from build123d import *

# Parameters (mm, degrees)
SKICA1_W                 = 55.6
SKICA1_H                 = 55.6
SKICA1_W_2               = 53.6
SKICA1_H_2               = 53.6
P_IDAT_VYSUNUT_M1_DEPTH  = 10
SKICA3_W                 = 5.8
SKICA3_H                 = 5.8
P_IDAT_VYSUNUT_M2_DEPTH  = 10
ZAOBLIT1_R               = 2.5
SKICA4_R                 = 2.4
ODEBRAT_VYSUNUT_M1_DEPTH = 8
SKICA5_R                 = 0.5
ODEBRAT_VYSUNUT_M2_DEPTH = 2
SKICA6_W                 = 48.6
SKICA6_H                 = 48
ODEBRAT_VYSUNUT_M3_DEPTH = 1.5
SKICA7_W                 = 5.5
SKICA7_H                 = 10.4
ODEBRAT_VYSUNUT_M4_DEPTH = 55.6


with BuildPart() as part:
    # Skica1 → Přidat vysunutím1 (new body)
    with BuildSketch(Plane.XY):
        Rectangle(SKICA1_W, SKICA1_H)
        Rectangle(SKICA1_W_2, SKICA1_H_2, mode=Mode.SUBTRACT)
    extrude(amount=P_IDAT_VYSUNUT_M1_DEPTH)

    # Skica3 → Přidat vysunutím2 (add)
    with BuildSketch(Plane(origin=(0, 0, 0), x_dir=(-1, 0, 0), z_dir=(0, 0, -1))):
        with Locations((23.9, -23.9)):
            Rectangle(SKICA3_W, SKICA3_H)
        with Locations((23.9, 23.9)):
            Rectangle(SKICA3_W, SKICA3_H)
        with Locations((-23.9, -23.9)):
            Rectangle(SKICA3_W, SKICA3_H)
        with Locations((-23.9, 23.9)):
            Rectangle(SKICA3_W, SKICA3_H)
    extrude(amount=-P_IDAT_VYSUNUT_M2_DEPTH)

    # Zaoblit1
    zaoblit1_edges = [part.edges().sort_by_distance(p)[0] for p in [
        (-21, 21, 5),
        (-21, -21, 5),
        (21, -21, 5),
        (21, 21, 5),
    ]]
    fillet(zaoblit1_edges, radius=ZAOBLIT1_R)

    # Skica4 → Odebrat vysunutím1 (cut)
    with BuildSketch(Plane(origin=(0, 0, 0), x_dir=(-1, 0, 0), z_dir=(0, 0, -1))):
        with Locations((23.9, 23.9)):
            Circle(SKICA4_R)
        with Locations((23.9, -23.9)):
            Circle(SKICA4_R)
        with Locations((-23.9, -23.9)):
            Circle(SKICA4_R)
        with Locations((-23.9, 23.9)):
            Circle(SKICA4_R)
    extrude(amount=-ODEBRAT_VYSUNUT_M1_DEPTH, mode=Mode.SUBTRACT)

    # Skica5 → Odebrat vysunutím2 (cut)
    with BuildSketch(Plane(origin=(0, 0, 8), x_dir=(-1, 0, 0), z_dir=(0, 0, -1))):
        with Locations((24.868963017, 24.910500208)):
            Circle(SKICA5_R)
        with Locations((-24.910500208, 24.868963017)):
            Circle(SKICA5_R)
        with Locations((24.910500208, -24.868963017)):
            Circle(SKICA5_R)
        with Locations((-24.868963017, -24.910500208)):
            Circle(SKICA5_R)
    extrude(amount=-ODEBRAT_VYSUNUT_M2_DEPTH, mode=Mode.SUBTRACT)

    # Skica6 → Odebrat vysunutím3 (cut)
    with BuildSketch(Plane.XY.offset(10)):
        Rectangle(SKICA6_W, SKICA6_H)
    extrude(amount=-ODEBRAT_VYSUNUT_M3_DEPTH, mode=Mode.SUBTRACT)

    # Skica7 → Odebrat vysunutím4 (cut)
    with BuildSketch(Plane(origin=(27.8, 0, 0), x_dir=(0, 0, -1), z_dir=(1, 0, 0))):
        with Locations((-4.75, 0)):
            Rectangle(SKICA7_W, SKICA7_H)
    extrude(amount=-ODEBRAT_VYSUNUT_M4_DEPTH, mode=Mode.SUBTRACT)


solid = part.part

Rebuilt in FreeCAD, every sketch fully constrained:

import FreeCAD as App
import Part
import Sketcher


def edges_at(feature, points):
    """Names of the edges that pass closest to the given points."""
    edges = feature.Shape.Edges
    near = lambda p: min(range(len(edges)), key=lambda i: edges[i].distToShape(Part.Vertex(*p))[0])
    return sorted({f"Edge{near(p) + 1}" for p in points})

doc = App.newDocument("Part")
body = doc.addObject("PartDesign::Body", "Body")

# Sketch on XY plane
sketch1 = body.newObject("Sketcher::SketchObject", "Sketch")
sketch1.AttachmentSupport = (doc.getObject("XY_Plane"), [""])
sketch1.MapMode = "FlatFace"
sketch1.addGeometry(Part.LineSegment(App.Vector(-28, 28, 0), App.Vector(-28, -28, 0)), False)
sketch1.addGeometry(Part.LineSegment(App.Vector(-28, -28, 0), App.Vector(28, -28, 0)), False)
sketch1.addGeometry(Part.LineSegment(App.Vector(28, -28, 0), App.Vector(28, 28, 0)), False)
sketch1.addGeometry(Part.LineSegment(App.Vector(28, 28, 0), App.Vector(-28, 28, 0)), False)
sketch1.addGeometry(Part.LineSegment(App.Vector(27, -27, 0), App.Vector(-27, -27, 0)), False)
sketch1.addGeometry(Part.LineSegment(App.Vector(-27, -27, 0), App.Vector(-27, 27, 0)), False)
sketch1.addGeometry(Part.LineSegment(App.Vector(-27, 27, 0), App.Vector(27, 27, 0)), False)
sketch1.addGeometry(Part.LineSegment(App.Vector(27, 27, 0), App.Vector(27, -27, 0)), False)
sketch1.addConstraint(Sketcher.Constraint("Coincident", 0, 2, 1, 1))
sketch1.addConstraint(Sketcher.Constraint("Coincident", 1, 2, 2, 1))
sketch1.addConstraint(Sketcher.Constraint("Coincident", 2, 2, 3, 1))
sketch1.addConstraint(Sketcher.Constraint("Coincident", 3, 2, 0, 1))
sketch1.addConstraint(Sketcher.Constraint("Coincident", 4, 2, 5, 1))
sketch1.addConstraint(Sketcher.Constraint("Coincident", 5, 2, 6, 1))
sketch1.addConstraint(Sketcher.Constraint("Coincident", 6, 2, 7, 1))
sketch1.addConstraint(Sketcher.Constraint("Coincident", 7, 2, 4, 1))
sketch1.addConstraint(Sketcher.Constraint("Vertical", 0))
sketch1.addConstraint(Sketcher.Constraint("Horizontal", 1))
sketch1.addConstraint(Sketcher.Constraint("Vertical", 2))
sketch1.addConstraint(Sketcher.Constraint("Horizontal", 3))
sketch1.addConstraint(Sketcher.Constraint("Horizontal", 4))
sketch1.addConstraint(Sketcher.Constraint("Vertical", 5))
sketch1.addConstraint(Sketcher.Constraint("Horizontal", 6))
sketch1.addConstraint(Sketcher.Constraint("Vertical", 7))
sketch1.addConstraint(Sketcher.Constraint("Symmetric", 0, 2, 2, 2, -1, 1))
sketch1.addConstraint(Sketcher.Constraint("Symmetric", 4, 2, 6, 2, -1, 1))
sketch1.addConstraint(Sketcher.Constraint("Equal", 3, 0))
sketch1.addConstraint(Sketcher.Constraint("Equal", 6, 5))
sketch1.addConstraint(Sketcher.Constraint("DistanceX", 1, 1, 1, 2, 55.6))
sketch1.addConstraint(Sketcher.Constraint("DistanceX", 4, 2, 4, 1, 53.6))
pad1 = body.newObject("PartDesign::Pad", "Pad")
pad1.Profile = sketch1
pad1.Length = 10

# Sketch on XY plane
sketch2 = body.newObject("Sketcher::SketchObject", "Sketch001")
sketch2.AttachmentSupport = (doc.getObject("XY_Plane"), [""])
sketch2.MapMode = "FlatFace"
sketch2.addGeometry(Part.LineSegment(App.Vector(-21, -21, 0), App.Vector(-21, -27, 0)), False)
sketch2.addGeometry(Part.LineSegment(App.Vector(-21, -27, 0), App.Vector(-27, -27, 0)), False)
sketch2.addGeometry(Part.LineSegment(App.Vector(-27, -27, 0), App.Vector(-27, -21, 0)), False)
sketch2.addGeometry(Part.LineSegment(App.Vector(-27, -21, 0), App.Vector(-21, -21, 0)), False)
sketch2.addGeometry(Part.LineSegment(App.Vector(-21, 27, 0), App.Vector(-21, 21, 0)), False)
sketch2.addGeometry(Part.LineSegment(App.Vector(-21, 21, 0), App.Vector(-27, 21, 0)), False)
sketch2.addGeometry(Part.LineSegment(App.Vector(-27, 21, 0), App.Vector(-27, 27, 0)), False)
sketch2.addGeometry(Part.LineSegment(App.Vector(-27, 27, 0), App.Vector(-21, 27, 0)), False)
sketch2.addGeometry(Part.LineSegment(App.Vector(27, -21, 0), App.Vector(27, -27, 0)), False)
sketch2.addGeometry(Part.LineSegment(App.Vector(27, -27, 0), App.Vector(21, -27, 0)), False)
sketch2.addGeometry(Part.LineSegment(App.Vector(21, -27, 0), App.Vector(21, -21, 0)), False)
sketch2.addGeometry(Part.LineSegment(App.Vector(21, -21, 0), App.Vector(27, -21, 0)), False)
sketch2.addGeometry(Part.LineSegment(App.Vector(27, 27, 0), App.Vector(27, 21, 0)), False)
sketch2.addGeometry(Part.LineSegment(App.Vector(27, 21, 0), App.Vector(21, 21, 0)), False)
sketch2.addGeometry(Part.LineSegment(App.Vector(21, 21, 0), App.Vector(21, 27, 0)), False)
sketch2.addGeometry(Part.LineSegment(App.Vector(21, 27, 0), App.Vector(27, 27, 0)), False)
sketch2.addConstraint(Sketcher.Constraint("Coincident", 0, 2, 1, 1))
sketch2.addConstraint(Sketcher.Constraint("Coincident", 1, 2, 2, 1))
sketch2.addConstraint(Sketcher.Constraint("Coincident", 2, 2, 3, 1))
sketch2.addConstraint(Sketcher.Constraint("Coincident", 3, 2, 0, 1))
sketch2.addConstraint(Sketcher.Constraint("Coincident", 4, 2, 5, 1))
sketch2.addConstraint(Sketcher.Constraint("Coincident", 5, 2, 6, 1))
sketch2.addConstraint(Sketcher.Constraint("Coincident", 6, 2, 7, 1))
sketch2.addConstraint(Sketcher.Constraint("Coincident", 7, 2, 4, 1))
sketch2.addConstraint(Sketcher.Constraint("Coincident", 8, 2, 9, 1))
sketch2.addConstraint(Sketcher.Constraint("Coincident", 9, 2, 10, 1))
sketch2.addConstraint(Sketcher.Constraint("Coincident", 10, 2, 11, 1))
sketch2.addConstraint(Sketcher.Constraint("Coincident", 11, 2, 8, 1))
sketch2.addConstraint(Sketcher.Constraint("Coincident", 12, 2, 13, 1))
sketch2.addConstraint(Sketcher.Constraint("Coincident", 13, 2, 14, 1))
sketch2.addConstraint(Sketcher.Constraint("Coincident", 14, 2, 15, 1))
sketch2.addConstraint(Sketcher.Constraint("Coincident", 15, 2, 12, 1))
sketch2.addConstraint(Sketcher.Constraint("Vertical", 0))
sketch2.addConstraint(Sketcher.Constraint("Horizontal", 1))
sketch2.addConstraint(Sketcher.Constraint("Vertical", 2))
sketch2.addConstraint(Sketcher.Constraint("Horizontal", 3))
sketch2.addConstraint(Sketcher.Constraint("Vertical", 4))
sketch2.addConstraint(Sketcher.Constraint("Horizontal", 5))
sketch2.addConstraint(Sketcher.Constraint("Vertical", 6))
sketch2.addConstraint(Sketcher.Constraint("Horizontal", 7))
sketch2.addConstraint(Sketcher.Constraint("Vertical", 8))
sketch2.addConstraint(Sketcher.Constraint("Horizontal", 9))
sketch2.addConstraint(Sketcher.Constraint("Vertical", 10))
sketch2.addConstraint(Sketcher.Constraint("Horizontal", 11))
sketch2.addConstraint(Sketcher.Constraint("Vertical", 12))
sketch2.addConstraint(Sketcher.Constraint("Horizontal", 13))
sketch2.addConstraint(Sketcher.Constraint("Vertical", 14))
sketch2.addConstraint(Sketcher.Constraint("Horizontal", 15))
sketch2.addConstraint(Sketcher.Constraint("Symmetric", 6, 2, 8, 2, -1, 1))
sketch2.addConstraint(Sketcher.Constraint("Symmetric", 4, 2, 10, 2, -1, 1))
sketch2.addConstraint(Sketcher.Constraint("Symmetric", 2, 2, 12, 2, -1, 1))
sketch2.addConstraint(Sketcher.Constraint("Symmetric", 0, 2, 14, 2, -1, 1))
sketch2.addConstraint(Sketcher.Constraint("Symmetric", 1, 2, 8, 2, -2))
sketch2.addConstraint(Sketcher.Constraint("Symmetric", 3, 2, 10, 2, -2))
sketch2.addConstraint(Sketcher.Constraint("Equal", 15, 0))
sketch2.addConstraint(Sketcher.Constraint("DistanceX", 1, 2, 1, 1, 5.8))
sketch2.addConstraint(Sketcher.Constraint("DistanceX", 0, 2, -1, 1, 21.0))
sketch2.addConstraint(Sketcher.Constraint("DistanceY", 2, 2, -1, 1, 21.0))
pad2 = body.newObject("PartDesign::Pad", "Pad001")
pad2.Profile = sketch2
pad2.Length = 10
doc.recompute()

fillet = body.newObject("PartDesign::Fillet", "Fillet")
fillet.Base = (pad2, edges_at(pad2, [
    (-21, 21, 5),
    (-21, -21, 5),
    (21, -21, 5),
    (21, 21, 5),
]))
fillet.Radius = 2.5

# Sketch on XY plane
sketch3 = body.newObject("Sketcher::SketchObject", "Sketch002")
sketch3.AttachmentSupport = (doc.getObject("XY_Plane"), [""])
sketch3.MapMode = "FlatFace"
sketch3.addGeometry(Part.Circle(App.Vector(-23.9, 23.9, 0), App.Vector(0, 0, 1), 2.4), False)
sketch3.addGeometry(Part.Circle(App.Vector(-23.9, -23.9, 0), App.Vector(0, 0, 1), 2.4), False)
sketch3.addGeometry(Part.Circle(App.Vector(23.9, -23.9, 0), App.Vector(0, 0, 1), 2.4), False)
sketch3.addGeometry(Part.Circle(App.Vector(23.9, 23.9, 0), App.Vector(0, 0, 1), 2.4), False)
sketch3.addConstraint(Sketcher.Constraint("Equal", 0, 1))
sketch3.addConstraint(Sketcher.Constraint("Equal", 1, 2))
sketch3.addConstraint(Sketcher.Constraint("Equal", 2, 3))
sketch3.addConstraint(Sketcher.Constraint("Symmetric", 0, 3, 2, 3, -1, 1))
sketch3.addConstraint(Sketcher.Constraint("Symmetric", 1, 3, 3, 3, -1, 1))
sketch3.addConstraint(Sketcher.Constraint("Symmetric", 1, 3, 2, 3, -2))
sketch3.addConstraint(Sketcher.Constraint("Diameter", 0, 4.8))
sketch3.addConstraint(Sketcher.Constraint("DistanceX", 0, 3, -1, 1, 23.9))
sketch3.addConstraint(Sketcher.Constraint("DistanceY", -1, 1, 0, 3, 23.9))
pocket1 = body.newObject("PartDesign::Pocket", "Pocket")
pocket1.Profile = sketch3
pocket1.Length = 8
pocket1.Reversed = True

# Sketch on XY plane
sketch4 = body.newObject("Sketcher::SketchObject", "Sketch003")
sketch4.AttachmentSupport = (doc.getObject("XY_Plane"), [""])
sketch4.MapMode = "FlatFace"
sketch4.AttachmentOffset = App.Placement(App.Vector(0, 0, 8), App.Rotation())
sketch4.addGeometry(Part.Circle(App.Vector(-24.9, 24.9, 0), App.Vector(0, 0, 1), 0.5), False)
sketch4.addGeometry(Part.Circle(App.Vector(24.9, 24.9, 0), App.Vector(0, 0, 1), 0.5), False)
sketch4.addGeometry(Part.Circle(App.Vector(-24.9, -24.9, 0), App.Vector(0, 0, 1), 0.5), False)
sketch4.addGeometry(Part.Circle(App.Vector(24.9, -24.9, 0), App.Vector(0, 0, 1), 0.5), False)
sketch4.addConstraint(Sketcher.Constraint("Equal", 0, 1))
sketch4.addConstraint(Sketcher.Constraint("Equal", 1, 2))
sketch4.addConstraint(Sketcher.Constraint("Equal", 2, 3))
sketch4.addConstraint(Sketcher.Constraint("Symmetric", 1, 3, 2, 3, -1, 1))
sketch4.addConstraint(Sketcher.Constraint("Symmetric", 0, 3, 3, 3, -1, 1))
sketch4.addConstraint(Sketcher.Constraint("Diameter", 0, 1.0))
sketch4.addConstraint(Sketcher.Constraint("DistanceX", 2, 3, 1, 3, 49.821))
sketch4.addConstraint(Sketcher.Constraint("DistanceY", 3, 3, 0, 3, 49.821))
sketch4.addConstraint(Sketcher.Constraint("DistanceX", 0, 3, -1, 1, 24.868963))
sketch4.addConstraint(Sketcher.Constraint("DistanceY", -1, 1, 1, 3, 24.868963))
pocket2 = body.newObject("PartDesign::Pocket", "Pocket001")
pocket2.Profile = sketch4
pocket2.Length = 2
pocket2.Reversed = True

# Sketch on XY plane
sketch5 = body.newObject("Sketcher::SketchObject", "Sketch004")
sketch5.AttachmentSupport = (doc.getObject("XY_Plane"), [""])
sketch5.MapMode = "FlatFace"
sketch5.AttachmentOffset = App.Placement(App.Vector(0, 0, 10), App.Rotation())
sketch5.addGeometry(Part.LineSegment(App.Vector(-24, 24, 0), App.Vector(-24, -24, 0)), False)
sketch5.addGeometry(Part.LineSegment(App.Vector(-24, -24, 0), App.Vector(24, -24, 0)), False)
sketch5.addGeometry(Part.LineSegment(App.Vector(24, -24, 0), App.Vector(24, 24, 0)), False)
sketch5.addGeometry(Part.LineSegment(App.Vector(24, 24, 0), App.Vector(-24, 24, 0)), False)
sketch5.addConstraint(Sketcher.Constraint("Coincident", 0, 2, 1, 1))
sketch5.addConstraint(Sketcher.Constraint("Coincident", 1, 2, 2, 1))
sketch5.addConstraint(Sketcher.Constraint("Coincident", 2, 2, 3, 1))
sketch5.addConstraint(Sketcher.Constraint("Coincident", 3, 2, 0, 1))
sketch5.addConstraint(Sketcher.Constraint("Vertical", 0))
sketch5.addConstraint(Sketcher.Constraint("Horizontal", 1))
sketch5.addConstraint(Sketcher.Constraint("Vertical", 2))
sketch5.addConstraint(Sketcher.Constraint("Horizontal", 3))
sketch5.addConstraint(Sketcher.Constraint("Symmetric", 0, 2, 2, 2, -1, 1))
sketch5.addConstraint(Sketcher.Constraint("DistanceY", 0, 2, 0, 1, 48.0))
sketch5.addConstraint(Sketcher.Constraint("DistanceX", 1, 1, 1, 2, 48.6))
pocket3 = body.newObject("PartDesign::Pocket", "Pocket002")
pocket3.Profile = sketch5
pocket3.Length = 1.5

# Sketch on YZ plane
sketch6 = body.newObject("Sketcher::SketchObject", "Sketch005")
sketch6.AttachmentSupport = (doc.getObject("YZ_Plane"), [""])
sketch6.MapMode = "FlatFace"
sketch6.AttachmentOffset = App.Placement(App.Vector(0, 0, 27.8), App.Rotation())
sketch6.addGeometry(Part.LineSegment(App.Vector(5, 8, 0), App.Vector(-5, 8, 0)), False)
sketch6.addGeometry(Part.LineSegment(App.Vector(-5, 8, 0), App.Vector(-5, 2, 0)), False)
sketch6.addGeometry(Part.LineSegment(App.Vector(-5, 2, 0), App.Vector(5, 2, 0)), False)
sketch6.addGeometry(Part.LineSegment(App.Vector(5, 2, 0), App.Vector(5, 8, 0)), False)
sketch6.addConstraint(Sketcher.Constraint("Coincident", 0, 2, 1, 1))
sketch6.addConstraint(Sketcher.Constraint("Coincident", 1, 2, 2, 1))
sketch6.addConstraint(Sketcher.Constraint("Coincident", 2, 2, 3, 1))
sketch6.addConstraint(Sketcher.Constraint("Coincident", 3, 2, 0, 1))
sketch6.addConstraint(Sketcher.Constraint("Horizontal", 0))
sketch6.addConstraint(Sketcher.Constraint("Vertical", 1))
sketch6.addConstraint(Sketcher.Constraint("Horizontal", 2))
sketch6.addConstraint(Sketcher.Constraint("Vertical", 3))
sketch6.addConstraint(Sketcher.Constraint("DistanceX", 0, 2, 0, 1, 10.4))
sketch6.addConstraint(Sketcher.Constraint("DistanceY", 1, 2, 1, 1, 5.5))
sketch6.addConstraint(Sketcher.Constraint("DistanceY", -1, 1, 1, 2, 2.0))
sketch6.addConstraint(Sketcher.Constraint("DistanceX", 0, 2, -1, 1, 5.2))
pocket4 = body.newObject("PartDesign::Pocket", "Pocket003")
pocket4.Profile = sketch6
pocket4.Length = 55.6

doc.recompute()
